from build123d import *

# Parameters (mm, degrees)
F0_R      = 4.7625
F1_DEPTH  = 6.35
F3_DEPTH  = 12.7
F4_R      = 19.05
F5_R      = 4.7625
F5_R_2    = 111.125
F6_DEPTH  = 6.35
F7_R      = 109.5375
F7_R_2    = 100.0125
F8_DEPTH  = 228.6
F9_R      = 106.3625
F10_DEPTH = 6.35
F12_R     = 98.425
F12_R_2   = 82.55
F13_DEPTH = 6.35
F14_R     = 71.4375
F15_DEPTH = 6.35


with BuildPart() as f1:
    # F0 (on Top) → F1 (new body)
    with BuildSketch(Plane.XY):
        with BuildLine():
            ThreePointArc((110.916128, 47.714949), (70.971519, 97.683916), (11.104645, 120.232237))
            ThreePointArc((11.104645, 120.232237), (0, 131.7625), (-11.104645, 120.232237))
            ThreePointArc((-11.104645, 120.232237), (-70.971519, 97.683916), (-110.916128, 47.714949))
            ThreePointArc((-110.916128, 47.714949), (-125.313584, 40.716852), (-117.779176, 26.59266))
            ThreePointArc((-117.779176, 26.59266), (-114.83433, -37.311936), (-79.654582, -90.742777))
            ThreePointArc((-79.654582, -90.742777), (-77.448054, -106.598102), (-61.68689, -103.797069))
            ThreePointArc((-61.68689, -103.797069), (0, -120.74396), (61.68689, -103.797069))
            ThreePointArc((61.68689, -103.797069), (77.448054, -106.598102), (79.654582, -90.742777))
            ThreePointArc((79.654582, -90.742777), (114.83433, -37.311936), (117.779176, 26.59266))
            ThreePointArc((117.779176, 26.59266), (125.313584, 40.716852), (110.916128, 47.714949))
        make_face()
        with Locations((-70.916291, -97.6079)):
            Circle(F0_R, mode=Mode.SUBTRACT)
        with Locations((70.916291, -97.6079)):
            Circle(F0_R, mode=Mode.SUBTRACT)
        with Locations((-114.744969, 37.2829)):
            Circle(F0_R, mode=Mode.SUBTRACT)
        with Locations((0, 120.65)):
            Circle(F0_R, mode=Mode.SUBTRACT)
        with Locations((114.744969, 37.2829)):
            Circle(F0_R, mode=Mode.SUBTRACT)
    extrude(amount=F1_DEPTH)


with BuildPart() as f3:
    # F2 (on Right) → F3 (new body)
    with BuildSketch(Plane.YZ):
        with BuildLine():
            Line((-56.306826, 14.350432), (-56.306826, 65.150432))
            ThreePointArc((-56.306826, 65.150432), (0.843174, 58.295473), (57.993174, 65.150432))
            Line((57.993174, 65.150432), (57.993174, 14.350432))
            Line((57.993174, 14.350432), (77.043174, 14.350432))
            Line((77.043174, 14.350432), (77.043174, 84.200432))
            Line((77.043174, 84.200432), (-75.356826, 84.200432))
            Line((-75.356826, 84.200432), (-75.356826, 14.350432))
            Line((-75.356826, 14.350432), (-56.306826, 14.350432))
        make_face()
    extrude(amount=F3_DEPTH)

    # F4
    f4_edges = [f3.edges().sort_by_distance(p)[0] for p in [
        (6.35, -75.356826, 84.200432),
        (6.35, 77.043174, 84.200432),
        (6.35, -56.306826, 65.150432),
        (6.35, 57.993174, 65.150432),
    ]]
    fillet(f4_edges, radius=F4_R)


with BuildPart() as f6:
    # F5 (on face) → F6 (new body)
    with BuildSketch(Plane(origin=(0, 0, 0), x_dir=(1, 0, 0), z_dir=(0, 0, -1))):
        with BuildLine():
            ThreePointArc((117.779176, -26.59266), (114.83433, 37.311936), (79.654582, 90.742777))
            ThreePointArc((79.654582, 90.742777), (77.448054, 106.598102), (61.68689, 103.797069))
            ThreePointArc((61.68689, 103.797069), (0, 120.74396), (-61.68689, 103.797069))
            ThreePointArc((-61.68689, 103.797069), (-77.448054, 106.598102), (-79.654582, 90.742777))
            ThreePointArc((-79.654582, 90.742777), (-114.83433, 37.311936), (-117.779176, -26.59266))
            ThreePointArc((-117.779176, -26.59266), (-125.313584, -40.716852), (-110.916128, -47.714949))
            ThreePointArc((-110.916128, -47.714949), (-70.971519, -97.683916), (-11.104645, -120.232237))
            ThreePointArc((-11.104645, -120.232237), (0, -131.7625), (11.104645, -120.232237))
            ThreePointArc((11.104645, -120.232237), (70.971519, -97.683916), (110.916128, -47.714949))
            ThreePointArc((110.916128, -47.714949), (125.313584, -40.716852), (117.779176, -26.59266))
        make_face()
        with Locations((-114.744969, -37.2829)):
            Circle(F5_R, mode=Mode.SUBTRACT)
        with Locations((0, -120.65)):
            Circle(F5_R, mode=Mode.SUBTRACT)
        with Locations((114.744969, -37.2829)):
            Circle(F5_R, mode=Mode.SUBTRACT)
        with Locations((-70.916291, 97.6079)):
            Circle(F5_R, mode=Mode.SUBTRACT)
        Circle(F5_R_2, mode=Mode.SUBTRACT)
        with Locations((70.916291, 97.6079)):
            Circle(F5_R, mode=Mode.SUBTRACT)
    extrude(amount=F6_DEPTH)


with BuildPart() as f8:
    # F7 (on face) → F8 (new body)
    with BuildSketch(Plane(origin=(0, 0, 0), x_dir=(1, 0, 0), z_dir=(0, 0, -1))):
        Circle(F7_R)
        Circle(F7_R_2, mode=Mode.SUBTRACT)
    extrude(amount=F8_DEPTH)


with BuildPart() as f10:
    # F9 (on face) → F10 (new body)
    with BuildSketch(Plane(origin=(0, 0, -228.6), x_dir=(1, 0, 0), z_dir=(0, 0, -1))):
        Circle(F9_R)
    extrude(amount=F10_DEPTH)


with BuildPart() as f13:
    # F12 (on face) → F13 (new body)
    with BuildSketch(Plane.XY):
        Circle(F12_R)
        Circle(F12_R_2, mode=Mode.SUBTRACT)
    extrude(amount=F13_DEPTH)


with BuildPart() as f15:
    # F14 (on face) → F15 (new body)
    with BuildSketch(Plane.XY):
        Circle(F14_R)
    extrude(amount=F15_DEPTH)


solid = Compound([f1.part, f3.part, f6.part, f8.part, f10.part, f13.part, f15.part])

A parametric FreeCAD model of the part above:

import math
import FreeCAD as App
import Part
import Sketcher
from FreeCAD import Vector
Q = App.Units.Quantity


def edges_at(feature, points):
    """Names of the edges that pass closest to the given points."""
    edges = feature.Shape.Edges
    near = lambda p: min(range(len(edges)), key=lambda i: edges[i].distToShape(Part.Vertex(*p))[0])
    return sorted({f"Edge{near(p) + 1}" for p in points})

doc = App.newDocument("Part")
body = doc.addObject("PartDesign::Body", "Body")

# Sketch on XY plane
sketch1 = body.newObject("Sketcher::SketchObject", "Sketch")
sketch1.AttachmentSupport = (doc.getObject("XY_Plane"), [""])
sketch1.MapMode = "FlatFace"
sketch1.addGeometry(Part.ArcOfCircle(Part.Circle(Vector(0, 0, 0), Vector(0, 0, 1), 120.7), math.radians(23), math.radians(85)), False)
sketch1.addGeometry(Part.ArcOfCircle(Part.Circle(Vector(0, 120.6, 0), Vector(0, 0, 1), 11.1), math.radians(-2), math.radians(182)), False)
sketch1.addGeometry(Part.ArcOfCircle(Part.Circle(Vector(0, 0, 0), Vector(0, 0, 1), 120.7), math.radians(95), math.radians(157)), False)
sketch1.addGeometry(Part.ArcOfCircle(Part.Circle(Vector(-114.7, 37.3, 0), Vector(0, 0, 1), 11.1), math.radians(70), math.radians(254)), False)
sketch1.addGeometry(Part.ArcOfCircle(Part.Circle(Vector(0, 0, 0), Vector(0, 0, 1), 120.7), math.radians(167), math.radians(229)), False)
sketch1.addGeometry(Part.ArcOfCircle(Part.Circle(Vector(-70.9, -97.6, 0), Vector(0, 0, 1), 11.1), math.radians(142), math.radians(326)), False)
sketch1.addGeometry(Part.ArcOfCircle(Part.Circle(Vector(0, 0, 0), Vector(0, 0, 1), 120.7), math.radians(-121), math.radians(-59)), False)
sketch1.addGeometry(Part.ArcOfCircle(Part.Circle(Vector(70.9, -97.6, 0), Vector(0, 0, 1), 11.1), math.radians(-146), math.radians(38)), False)
sketch1.addGeometry(Part.ArcOfCircle(Part.Circle(Vector(0, 0, 0), Vector(0, 0, 1), 120.7), math.radians(-49), math.radians(13)), False)
sketch1.addGeometry(Part.ArcOfCircle(Part.Circle(Vector(114.7, 37.3, 0), Vector(0, 0, 1), 11.1), math.radians(-74), math.radians(110)), False)
sketch1.addGeometry(Part.Circle(Vector(-70.9, -97.6, 0), Vector(0, 0, 1), 4.8), False)
sketch1.addGeometry(Part.Circle(Vector(70.9, -97.6, 0), Vector(0, 0, 1), 4.8), False)
sketch1.addGeometry(Part.Circle(Vector(-114.7, 37.3, 0), Vector(0, 0, 1), 4.8), False)
sketch1.addGeometry(Part.Circle(Vector(114.7, 37.3, 0), Vector(0, 0, 1), 4.8), False)
sketch1.addGeometry(Part.Circle(Vector(0, 120.7, 0), Vector(0, 0, 1), 4.8), False)
sketch1.addConstraint(Sketcher.Constraint("Coincident", 0, 2, 1, 1))
sketch1.addConstraint(Sketcher.Constraint("Coincident", 1, 2, 2, 1))
sketch1.addConstraint(Sketcher.Constraint("Coincident", 2, 2, 3, 1))
sketch1.addConstraint(Sketcher.Constraint("Coincident", 3, 2, 4, 1))
sketch1.addConstraint(Sketcher.Constraint("Coincident", 4, 2, 5, 1))
sketch1.addConstraint(Sketcher.Constraint("Coincident", 5, 2, 6, 1))
sketch1.addConstraint(Sketcher.Constraint("Coincident", 6, 2, 7, 1))
sketch1.addConstraint(Sketcher.Constraint("Coincident", 7, 2, 8, 1))
sketch1.addConstraint(Sketcher.Constraint("Coincident", 8, 2, 9, 1))
sketch1.addConstraint(Sketcher.Constraint("Coincident", 9, 2, 0, 1))
sketch1.addConstraint(Sketcher.Constraint("Coincident", 0, 3, -1, 1))
sketch1.addConstraint(Sketcher.Constraint("Coincident", 2, 3, -1, 1))
sketch1.addConstraint(Sketcher.Constraint("Coincident", 4, 3, -1, 1))
sketch1.addConstraint(Sketcher.Constraint("Coincident", 6, 3, -1, 1))
sketch1.addConstraint(Sketcher.Constraint("Coincident", 8, 3, -1, 1))
sketch1.addConstraint(Sketcher.Constraint("Coincident", 10, 3, 5, 3))
sketch1.addConstraint(Sketcher.Constraint("Coincident", 11, 3, 7, 3))
sketch1.addConstraint(Sketcher.Constraint("Coincident", 12, 3, 3, 3))
sketch1.addConstraint(Sketcher.Constraint("Coincident", 13, 3, 9, 3))
sketch1.addConstraint(Sketcher.Constraint("Coincident", 14, 3, 1, 3))
sketch1.addConstraint(Sketcher.Constraint("Equal", 0, 2))
sketch1.addConstraint(Sketcher.Constraint("Equal", 1, 3))
sketch1.addConstraint(Sketcher.Constraint("Equal", 3, 5))
sketch1.addConstraint(Sketcher.Constraint("Equal", 4, 6))
sketch1.addConstraint(Sketcher.Constraint("Equal", 5, 7))
sketch1.addConstraint(Sketcher.Constraint("Equal", 6, 8))
sketch1.addConstraint(Sketcher.Constraint("Equal", 7, 9))
sketch1.addConstraint(Sketcher.Constraint("Equal", 10, 11))
sketch1.addConstraint(Sketcher.Constraint("Equal", 11, 12))
sketch1.addConstraint(Sketcher.Constraint("Equal", 12, 13))
sketch1.addConstraint(Sketcher.Constraint("Equal", 13, 14))
sketch1.addConstraint(Sketcher.Constraint("Symmetric", 5, 3, 7, 3, -2))
sketch1.addConstraint(Sketcher.Constraint("Symmetric", 3, 3, 9, 3, -2))
sketch1.addConstraint(Sketcher.Constraint("PointOnObject", 1, 3, -2))
sketch1.addConstraint(Sketcher.Constraint("Diameter", 10, Q("0.375 in")))
sketch1.addConstraint(Sketcher.Constraint("Radius", 1, Q("0.4375 in")))
sketch1.addConstraint(Sketcher.Constraint("DistanceY", -1, 1, 1, 3, Q("4.75 in")))
sketch1.addConstraint(Sketcher.Constraint("Radius", 0, Q("120.743958 mm")))
sketch1.addConstraint(Sketcher.Constraint("Radius", 4, Q("120.743961 mm")))
sketch1.addConstraint(Sketcher.Constraint("DistanceY", -1, 1, 3, 3, Q("37.2829 mm")))
sketch1.addConstraint(Sketcher.Constraint("DistanceY", 5, 3, -1, 1, Q("97.607901 mm")))
sketch1.addConstraint(Sketcher.Constraint("DistanceX", 5, 3, 5, 2, Q("9.229401 mm")))
sketch1.addConstraint(Sketcher.Constraint("DistanceX", 3, 3, -1, 1, Q("114.744969 mm")))
pad1 = body.newObject("PartDesign::Pad", "Pad")
pad1.Profile = sketch1
pad1.Length = Q("0.25 in")
body2 = doc.addObject("PartDesign::Body", "Body001")

# Sketch on YZ plane
sketch2 = body2.newObject("Sketcher::SketchObject", "Sketch001")
sketch2.AttachmentSupport = (doc.getObject("YZ_Plane001"), [""])
sketch2.MapMode = "FlatFace"
sketch2.addGeometry(Part.LineSegment(Vector(-56, 14, 0), Vector(-56, 65, 0)), False)
sketch2.addGeometry(Part.ArcOfCircle(Part.Circle(Vector(1, 300, 0), Vector(0, 0, 1), 242), math.radians(-104), math.radians(-76)), False)
sketch2.addGeometry(Part.LineSegment(Vector(58, 65, 0), Vector(58, 14, 0)), False)
sketch2.addGeometry(Part.LineSegment(Vector(58, 14, 0), Vector(77, 14, 0)), False)
sketch2.addGeometry(Part.LineSegment(Vector(77, 14, 0), Vector(77, 84, 0)), False)
sketch2.addGeometry(Part.LineSegment(Vector(77, 84, 0), Vector(-75, 84, 0)), False)
sketch2.addGeometry(Part.LineSegment(Vector(-75, 84, 0), Vector(-75, 14, 0)), False)
sketch2.addGeometry(Part.LineSegment(Vector(-75, 14, 0), Vector(-56, 14, 0)), False)
sketch2.addConstraint(Sketcher.Constraint("Coincident", 0, 2, 1, 1))
sketch2.addConstraint(Sketcher.Constraint("Coincident", 1, 2, 2, 1))
sketch2.addConstraint(Sketcher.Constraint("Coincident", 2, 2, 3, 1))
sketch2.addConstraint(Sketcher.Constraint("Coincident", 3, 2, 4, 1))
sketch2.addConstraint(Sketcher.Constraint("Coincident", 4, 2, 5, 1))
sketch2.addConstraint(Sketcher.Constraint("Coincident", 5, 2, 6, 1))
sketch2.addConstraint(Sketcher.Constraint("Coincident", 6, 2, 7, 1))
sketch2.addConstraint(Sketcher.Constraint("Coincident", 7, 2, 0, 1))
sketch2.addConstraint(Sketcher.Constraint("Vertical", 0))
sketch2.addConstraint(Sketcher.Constraint("Vertical", 2))
sketch2.addConstraint(Sketcher.Constraint("Horizontal", 3))
sketch2.addConstraint(Sketcher.Constraint("Vertical", 4))
sketch2.addConstraint(Sketcher.Constraint("Horizontal", 5))
sketch2.addConstraint(Sketcher.Constraint("Vertical", 6))
sketch2.addConstraint(Sketcher.Constraint("Horizontal", 7))
sketch2.addConstraint(Sketcher.Constraint("Horizontal", 0, 2, 1, 2))
sketch2.addConstraint(Sketcher.Constraint("Horizontal", 3, 2, 6, 2))
sketch2.addConstraint(Sketcher.Constraint("Equal", 3, 7))
sketch2.addConstraint(Sketcher.Constraint("DistanceX", 5, 2, 5, 1, Q("6 in")))
sketch2.addConstraint(Sketcher.Constraint("DistanceY", 0, 1, 0, 2, Q("2 in")))
sketch2.addConstraint(Sketcher.Constraint("DistanceX", 3, 1, 3, 2, Q("0.75 in")))
sketch2.addConstraint(Sketcher.Constraint("DistanceY", 4, 1, 4, 2, Q("2.75 in")))
sketch2.addConstraint(Sketcher.Constraint("Radius", 1, Q("241.658117 mm")))
sketch2.addConstraint(Sketcher.Constraint("DistanceY", -1, 1, 1, 3, Q("299.95359 mm")))
sketch2.addConstraint(Sketcher.Constraint("DistanceX", -1, 1, 1, 3, Q("0.843174 mm")))
pad2 = body2.newObject("PartDesign::Pad", "Pad001")
pad2.Profile = sketch2
pad2.Length = Q("0.5 in")
doc.recompute()

fillet = body2.newObject("PartDesign::Fillet", "Fillet")
fillet.Base = (pad2, edges_at(pad2, [
    (6.35, -75.357, 84.2),
    (6.35, 77.043, 84.2),
    (6.35, -56.307, 65.15),
    (6.35, 57.993, 65.15),
]))
fillet.Radius = Q("0.75 in")
body3 = doc.addObject("PartDesign::Body", "Body002")

# Sketch on XY plane
sketch3 = body3.newObject("Sketcher::SketchObject", "Sketch002")
sketch3.AttachmentSupport = (doc.getObject("XY_Plane002"), [""])
sketch3.MapMode = "FlatFace"
sketch3.addGeometry(Part.ArcOfCircle(Part.Circle(Vector(0, 0, 0), Vector(0, 0, 1), 120.7), math.radians(-49), math.radians(13)), False)
sketch3.addGeometry(Part.ArcOfCircle(Part.Circle(Vector(70.9, -97.6, 0), Vector(0, 0, 1), 11.1), math.radians(-146), math.radians(38)), False)
sketch3.addGeometry(Part.ArcOfCircle(Part.Circle(Vector(0, 0, 0), Vector(0, 0, 1), 120.7), math.radians(-121), math.radians(-59)), False)
sketch3.addGeometry(Part.ArcOfCircle(Part.Circle(Vector(-70.9, -97.6, 0), Vector(0, 0, 1), 11.1), math.radians(142), math.radians(326)), False)
sketch3.addGeometry(Part.ArcOfCircle(Part.Circle(Vector(0, 0, 0), Vector(0, 0, 1), 120.7), math.radians(167), math.radians(229)), False)
sketch3.addGeometry(Part.ArcOfCircle(Part.Circle(Vector(-114.7, 37.3, 0), Vector(0, 0, 1), 11.1), math.radians(70), math.radians(254)), False)
sketch3.addGeometry(Part.ArcOfCircle(Part.Circle(Vector(0, 0, 0), Vector(0, 0, 1), 120.7), math.radians(95), math.radians(157)), False)
sketch3.addGeometry(Part.ArcOfCircle(Part.Circle(Vector(0, 120.6, 0), Vector(0, 0, 1), 11.1), math.radians(-2), math.radians(182)), False)
sketch3.addGeometry(Part.ArcOfCircle(Part.Circle(Vector(0, 0, 0), Vector(0, 0, 1), 120.7), math.radians(23), math.radians(85)), False)
sketch3.addGeometry(Part.ArcOfCircle(Part.Circle(Vector(114.7, 37.3, 0), Vector(0, 0, 1), 11.1), math.radians(-74), math.radians(110)), False)
sketch3.addGeometry(Part.Circle(Vector(-114.7, 37.3, 0), Vector(0, 0, 1), 4.8), False)
sketch3.addGeometry(Part.Circle(Vector(0, 120.7, 0), Vector(0, 0, 1), 4.8), False)
sketch3.addGeometry(Part.Circle(Vector(114.7, 37.3, 0), Vector(0, 0, 1), 4.8), False)
sketch3.addGeometry(Part.Circle(Vector(-70.9, -97.6, 0), Vector(0, 0, 1), 4.8), False)
sketch3.addGeometry(Part.Circle(Vector(0, 0, 0), Vector(0, 0, 1), 111.1), False)
sketch3.addGeometry(Part.Circle(Vector(70.9, -97.6, 0), Vector(0, 0, 1), 4.8), False)
sketch3.addConstraint(Sketcher.Constraint("Coincident", 0, 1, 1, 2))
sketch3.addConstraint(Sketcher.Constraint("Coincident", 1, 1, 2, 2))
sketch3.addConstraint(Sketcher.Constraint("Coincident", 2, 1, 3, 2))
sketch3.addConstraint(Sketcher.Constraint("Coincident", 3, 1, 4, 2))
sketch3.addConstraint(Sketcher.Constraint("Coincident", 4, 1, 5, 2))
sketch3.addConstraint(Sketcher.Constraint("Coincident", 5, 1, 6, 2))
sketch3.addConstraint(Sketcher.Constraint("Coincident", 6, 1, 7, 2))
sketch3.addConstraint(Sketcher.Constraint("Coincident", 7, 1, 8, 2))
sketch3.addConstraint(Sketcher.Constraint("Coincident", 8, 1, 9, 2))
sketch3.addConstraint(Sketcher.Constraint("Coincident", 9, 1, 0, 2))
sketch3.addConstraint(Sketcher.Constraint("Coincident", 0, 3, -1, 1))
sketch3.addConstraint(Sketcher.Constraint("Coincident", 2, 3, -1, 1))
sketch3.addConstraint(Sketcher.Constraint("Coincident", 4, 3, -1, 1))
sketch3.addConstraint(Sketcher.Constraint("Coincident", 6, 3, -1, 1))
sketch3.addConstraint(Sketcher.Constraint("Coincident", 8, 3, -1, 1))
sketch3.addConstraint(Sketcher.Constraint("Coincident", 14, 3, -1, 1))
sketch3.addConstraint(Sketcher.Constraint("Coincident", 10, 3, 5, 3))
sketch3.addConstraint(Sketcher.Constraint("Coincident", 11, 3, 7, 3))
sketch3.addConstraint(Sketcher.Constraint("Coincident", 12, 3, 9, 3))
sketch3.addConstraint(Sketcher.Constraint("Coincident", 13, 3, 3, 3))
sketch3.addConstraint(Sketcher.Constraint("Coincident", 15, 3, 1, 3))
sketch3.addConstraint(Sketcher.Constraint("Equal", 0, 2))
sketch3.addConstraint(Sketcher.Constraint("Equal", 1, 3))
sketch3.addConstraint(Sketcher.Constraint("Equal", 2, 4))
sketch3.addConstraint(Sketcher.Constraint("Equal", 3, 5))
sketch3.addConstraint(Sketcher.Constraint("Equal", 5, 7))
sketch3.addConstraint(Sketcher.Constraint("Equal", 6, 8))
sketch3.addConstraint(Sketcher.Constraint("Equal", 7, 9))
sketch3.addConstraint(Sketcher.Constraint("Equal", 10, 11))
sketch3.addConstraint(Sketcher.Constraint("Equal", 11, 12))
sketch3.addConstraint(Sketcher.Constraint("Equal", 12, 13))
sketch3.addConstraint(Sketcher.Constraint("Equal", 13, 15))
sketch3.addConstraint(Sketcher.Constraint("Symmetric", 1, 3, 3, 3, -2))
sketch3.addConstraint(Sketcher.Constraint("Symmetric", 5, 3, 9, 3, -2))
sketch3.addConstraint(Sketcher.Constraint("PointOnObject", 7, 3, -2))
sketch3.addConstraint(Sketcher.Constraint("Diameter", 14, Q("8.75 in")))
sketch3.addConstraint(Sketcher.Constraint("Diameter", 10, Q("0.375 in")))
sketch3.addConstraint(Sketcher.Constraint("Radius", 1, Q("0.4375 in")))
sketch3.addConstraint(Sketcher.Constraint("DistanceY", -1, 1, 7, 3, Q("4.75 in")))
sketch3.addConstraint(Sketcher.Constraint("Radius", 0, Q("120.743961 mm")))
sketch3.addConstraint(Sketcher.Constraint("Radius", 6, Q("120.743958 mm")))
sketch3.addConstraint(Sketcher.Constraint("DistanceY", 1, 3, -1, 1, Q("97.607901 mm")))
sketch3.addConstraint(Sketcher.Constraint("DistanceY", -1, 1, 5, 3, Q("37.2829 mm")))
sketch3.addConstraint(Sketcher.Constraint("DistanceX", 1, 1, 1, 3, Q("9.229401 mm")))
sketch3.addConstraint(Sketcher.Constraint("DistanceX", 5, 3, -1, 1, Q("114.744969 mm")))
pad3 = body3.newObject("PartDesign::Pad", "Pad002")
pad3.Profile = sketch3
pad3.Length = Q("0.25 in")
pad3.Reversed = True
body4 = doc.addObject("PartDesign::Body", "Body003")

# Sketch on XY plane
sketch4 = body4.newObject("Sketcher::SketchObject", "Sketch003")
sketch4.AttachmentSupport = (doc.getObject("XY_Plane003"), [""])
sketch4.MapMode = "FlatFace"
sketch4.addGeometry(Part.Circle(Vector(0, 0, 0), Vector(0, 0, 1), 110), False)
sketch4.addGeometry(Part.Circle(Vector(0, 0, 0), Vector(0, 0, 1), 100), False)
sketch4.addConstraint(Sketcher.Constraint("Coincident", 0, 3, -1, 1))
sketch4.addConstraint(Sketcher.Constraint("Coincident", 1, 3, -1, 1))
sketch4.addConstraint(Sketcher.Constraint("Diameter", 0, Q("8.625 in")))
sketch4.addConstraint(Sketcher.Constraint("Diameter", 1, Q("7.875 in")))
pad4 = body4.newObject("PartDesign::Pad", "Pad003")
pad4.Profile = sketch4
pad4.Length = Q("9 in")
pad4.Reversed = True
body5 = doc.addObject("PartDesign::Body", "Body004")

# Sketch on XY plane
sketch5 = body5.newObject("Sketcher::SketchObject", "Sketch004")
sketch5.AttachmentSupport = (doc.getObject("XY_Plane004"), [""])
sketch5.MapMode = "FlatFace"
sketch5.AttachmentOffset = App.Placement(Vector(0, 0, -9 * 25.4), App.Rotation())
sketch5.addGeometry(Part.Circle(Vector(0, 0, 0), Vector(0, 0, 1), 106), False)
sketch5.addConstraint(Sketcher.Constraint("Coincident", 0, 3, -1, 1))
sketch5.addConstraint(Sketcher.Constraint("Diameter", 0, Q("8.375 in")))
pad5 = body5.newObject("PartDesign::Pad", "Pad004")
pad5.Profile = sketch5
pad5.Length = Q("0.25 in")
pad5.Reversed = True
body6 = doc.addObject("PartDesign::Body", "Body005")

# Sketch on XY plane
sketch6 = body6.newObject("Sketcher::SketchObject", "Sketch005")
sketch6.AttachmentSupport = (doc.getObject("XY_Plane005"), [""])
sketch6.MapMode = "FlatFace"
sketch6.addGeometry(Part.Circle(Vector(0, 0, 0), Vector(0, 0, 1), 98), False)
sketch6.addGeometry(Part.Circle(Vector(0, 0, 0), Vector(0, 0, 1), 83), False)
sketch6.addConstraint(Sketcher.Constraint("Coincident", 0, 3, -1, 1))
sketch6.addConstraint(Sketcher.Constraint("Coincident", 1, 3, -1, 1))
sketch6.addConstraint(Sketcher.Constraint("Diameter", 1, Q("6.5 in")))
sketch6.addConstraint(Sketcher.Constraint("Diameter", 0, Q("7.75 in")))
pad6 = body6.newObject("PartDesign::Pad", "Pad005")
pad6.Profile = sketch6
pad6.Length = Q("0.25 in")
body7 = doc.addObject("PartDesign::Body", "Body006")

# Sketch on XY plane
sketch7 = body7.newObject("Sketcher::SketchObject", "Sketch006")
sketch7.AttachmentSupport = (doc.getObject("XY_Plane006"), [""])
sketch7.MapMode = "FlatFace"
sketch7.addGeometry(Part.Circle(Vector(0, 0, 0), Vector(0, 0, 1), 71), False)
sketch7.addConstraint(Sketcher.Constraint("Coincident", 0, 3, -1, 1))
sketch7.addConstraint(Sketcher.Constraint("Diameter", 0, Q("5.625 in")))
pad7 = body7.newObject("PartDesign::Pad", "Pad006")
pad7.Profile = sketch7
pad7.Length = Q("0.25 in")

doc.recompute()
